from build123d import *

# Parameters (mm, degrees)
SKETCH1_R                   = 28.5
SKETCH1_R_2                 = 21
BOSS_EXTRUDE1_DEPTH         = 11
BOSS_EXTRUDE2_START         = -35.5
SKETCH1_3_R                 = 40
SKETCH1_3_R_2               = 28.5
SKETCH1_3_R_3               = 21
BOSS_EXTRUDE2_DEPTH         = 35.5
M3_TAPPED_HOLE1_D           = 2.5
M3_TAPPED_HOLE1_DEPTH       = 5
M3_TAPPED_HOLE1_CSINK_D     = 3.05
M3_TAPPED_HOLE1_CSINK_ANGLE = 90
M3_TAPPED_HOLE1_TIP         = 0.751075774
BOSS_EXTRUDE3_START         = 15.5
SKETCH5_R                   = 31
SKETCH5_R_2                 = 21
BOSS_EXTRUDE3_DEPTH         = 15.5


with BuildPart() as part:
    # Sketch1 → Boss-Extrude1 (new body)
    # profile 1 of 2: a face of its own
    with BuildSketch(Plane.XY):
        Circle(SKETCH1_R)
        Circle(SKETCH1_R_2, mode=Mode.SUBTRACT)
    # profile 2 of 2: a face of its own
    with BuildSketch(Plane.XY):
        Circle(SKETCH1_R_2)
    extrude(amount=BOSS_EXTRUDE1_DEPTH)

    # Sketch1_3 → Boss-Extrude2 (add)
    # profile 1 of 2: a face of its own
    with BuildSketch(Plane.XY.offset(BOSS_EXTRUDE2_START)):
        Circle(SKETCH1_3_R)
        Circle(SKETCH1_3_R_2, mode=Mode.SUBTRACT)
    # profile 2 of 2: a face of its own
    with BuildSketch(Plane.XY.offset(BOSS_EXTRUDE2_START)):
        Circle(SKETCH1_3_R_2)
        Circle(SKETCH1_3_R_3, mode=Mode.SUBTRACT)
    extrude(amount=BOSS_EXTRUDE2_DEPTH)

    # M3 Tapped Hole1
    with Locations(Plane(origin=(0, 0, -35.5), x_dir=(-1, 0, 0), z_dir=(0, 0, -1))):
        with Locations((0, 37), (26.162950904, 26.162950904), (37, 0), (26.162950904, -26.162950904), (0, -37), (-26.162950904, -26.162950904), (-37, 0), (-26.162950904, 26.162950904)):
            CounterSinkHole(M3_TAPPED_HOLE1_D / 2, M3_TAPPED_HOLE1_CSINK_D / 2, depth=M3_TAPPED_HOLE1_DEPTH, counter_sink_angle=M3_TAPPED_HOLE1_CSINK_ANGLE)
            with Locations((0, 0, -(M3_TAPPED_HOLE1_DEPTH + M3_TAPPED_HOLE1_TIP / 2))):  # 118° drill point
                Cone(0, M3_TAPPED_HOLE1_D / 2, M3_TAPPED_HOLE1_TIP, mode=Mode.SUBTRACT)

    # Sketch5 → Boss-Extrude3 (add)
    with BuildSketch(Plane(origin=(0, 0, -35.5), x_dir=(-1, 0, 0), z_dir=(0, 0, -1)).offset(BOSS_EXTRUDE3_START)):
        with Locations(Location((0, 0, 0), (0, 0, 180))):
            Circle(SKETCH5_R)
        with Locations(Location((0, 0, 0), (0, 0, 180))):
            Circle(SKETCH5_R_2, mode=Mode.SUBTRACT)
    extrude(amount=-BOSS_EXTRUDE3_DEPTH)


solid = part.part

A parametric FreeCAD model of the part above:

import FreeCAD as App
import Part
import Sketcher

V = App.Vector
Q = App.Units.Quantity

doc = App.newDocument("Part")
params = doc.addObject("Spreadsheet::Sheet", "Params")
for row, (alias, value) in enumerate([
    ("sketch1_diameter", "57 mm"),
    ("pad1_length", "11 mm"),
    ("sketch2_diameter", "80 mm"),
    ("sketch2_diameter2", "42 mm"),
    ("pad2_length", "35.5 mm"),
    ("sketch3_diameter", "2.5 mm"),
    ("hole_diameter", "2.5 mm"),
    ("hole_depth", "5 mm"),
    ("hole_csink_diameter", "3.05 mm"),
    ("sketch4_diameter", "62 mm"),
    ("sketch4_diameter2", "42 mm"),
    ("pad3_length", "15.5 mm"),
], start=1):
    params.set(f"A{row}", alias)
    params.set(f"B{row}", "=" + value)
    params.setAlias(f"B{row}", alias)

body = doc.addObject("PartDesign::Body", "Body")

# Sketch on XY plane
sketch1 = body.newObject("Sketcher::SketchObject", "Sketch")
sketch1.AttachmentSupport = (doc.getObject("XY_Plane"), [""])
sketch1.MapMode = "FlatFace"
sketch1.addGeometry(Part.Circle(V(0, 0, 0), V(0, 0, 1), 28), False)
sketch1.addConstraint([
    Sketcher.Constraint("Coincident", 0, 3, -1, 1),
    Sketcher.Constraint("Diameter", 0, Q("57 mm")),
])
sketch1.setExpression("Constraints[1]", "Params.sketch1_diameter")
pad1 = body.newObject("PartDesign::Pad", "Pad")
pad1.Profile = sketch1
pad1.setExpression("Length", "Params.pad1_length")

# Sketch on XY plane
sketch2 = body.newObject("Sketcher::SketchObject", "Sketch001")
sketch2.AttachmentSupport = (doc.getObject("XY_Plane"), [""])
sketch2.MapMode = "FlatFace"
sketch2.AttachmentOffset = App.Placement(V(0, 0, -35.5), App.Rotation())
sketch2.addGeometry([
    Part.Circle(V(0, 0, 0), V(0, 0, 1), 40),
    Part.Circle(V(0, 0, 0), V(0, 0, 1), 21),
], False)
sketch2.addConstraint([
    Sketcher.Constraint("Coincident", 0, 3, -1, 1),
    Sketcher.Constraint("Coincident", 1, 3, -1, 1),
    Sketcher.Constraint("Diameter", 0, Q("80 mm")),
    Sketcher.Constraint("Diameter", 1, Q("42 mm")),
])
sketch2.setExpression("Constraints[2]", "Params.sketch2_diameter")
sketch2.setExpression("Constraints[3]", "Params.sketch2_diameter2")
pad2 = body.newObject("PartDesign::Pad", "Pad001")
pad2.Profile = sketch2
pad2.setExpression("Length", "Params.pad2_length")

# Sketch on XY plane
sketch3 = body.newObject("Sketcher::SketchObject", "Sketch002")
sketch3.AttachmentSupport = (doc.getObject("XY_Plane"), [""])
sketch3.MapMode = "FlatFace"
sketch3.AttachmentOffset = App.Placement(V(0, 0, -35.5), App.Rotation())
sketch3.addGeometry([
    Part.Circle(V(0, 37, 0), V(0, 0, 1), 1.2),  # 0
    Part.Circle(V(-26.2, 26.2, 0), V(0, 0, 1), 1.2),  # 1
    Part.Circle(V(-37, 0, 0), V(0, 0, 1), 1.2),  # 2
    Part.Circle(V(-26.2, -26.2, 0), V(0, 0, 1), 1.2),  # 3
    Part.Circle(V(0, -37, 0), V(0, 0, 1), 1.2),  # 4
    Part.Circle(V(26.2, -26.2, 0), V(0, 0, 1), 1.2),  # 5
    Part.Circle(V(37, 0, 0), V(0, 0, 1), 1.2),  # 6
    Part.Circle(V(26.2, 26.2, 0), V(0, 0, 1), 1.2),  # 7
], False)
sketch3.addConstraint([
    Sketcher.Constraint("Equal", 0, 1),
    Sketcher.Constraint("Equal", 1, 2),
    Sketcher.Constraint("Equal", 2, 3),
    Sketcher.Constraint("Equal", 3, 4),
    Sketcher.Constraint("Equal", 4, 5),
    Sketcher.Constraint("Equal", 5, 6),
    Sketcher.Constraint("Equal", 6, 7),
    Sketcher.Constraint("Symmetric", 0, 3, 4, 3, -1, 1),
    Sketcher.Constraint("Symmetric", 1, 3, 5, 3, -1, 1),
    Sketcher.Constraint("Symmetric", 2, 3, 6, 3, -1, 1),
    Sketcher.Constraint("Symmetric", 3, 3, 7, 3, -1, 1),
    Sketcher.Constraint("Symmetric", 3, 3, 5, 3, -2),
    Sketcher.Constraint("PointOnObject", 0, 3, -2),
    Sketcher.Constraint("PointOnObject", 2, 3, -1),
    Sketcher.Constraint("Diameter", 0, Q("2.5 mm")),
    Sketcher.Constraint("DistanceY", -1, 1, 0, 3, Q("37 mm")),
    Sketcher.Constraint("DistanceX", 2, 3, -1, 1, Q("37 mm")),
    Sketcher.Constraint("DistanceY", 3, 3, 1, 3, Q("52.325902 mm")),
    Sketcher.Constraint("DistanceX", 3, 3, 5, 3, Q("52.325902 mm")),
])
sketch3.setExpression("Constraints[14]", "Params.sketch3_diameter")
doc.recompute()
hole = body.newObject("PartDesign::Hole", "Hole")
hole.Profile = sketch3
hole.ThreadType = "None"
hole.setExpression("Diameter", "Params.hole_diameter")
hole.DepthType = "Dimension"
hole.setExpression("Depth", "Params.hole_depth")
hole.DrillPoint = "Angled"
hole.DrillPointAngle = 118
hole.HoleCutType = "Countersink"
hole.setExpression("HoleCutDiameter", "Params.hole_csink_diameter")
hole.HoleCutCountersinkAngle = 90
hole.Reversed = True

# Sketch on XY plane
sketch4 = body.newObject("Sketcher::SketchObject", "Sketch003")
sketch4.AttachmentSupport = (doc.getObject("XY_Plane"), [""])
sketch4.MapMode = "FlatFace"
sketch4.AttachmentOffset = App.Placement(V(0, 0, -51), App.Rotation())
sketch4.addGeometry([
    Part.Circle(V(0, 0, 0), V(0, 0, 1), 31),
    Part.Circle(V(0, 0, 0), V(0, 0, 1), 21),
], False)
sketch4.addConstraint([
    Sketcher.Constraint("Coincident", 0, 3, -1, 1),
    Sketcher.Constraint("Coincident", 1, 3, -1, 1),
    Sketcher.Constraint("Diameter", 0, Q("62 mm")),
    Sketcher.Constraint("Diameter", 1, Q("42 mm")),
])
sketch4.setExpression("Constraints[2]", "Params.sketch4_diameter")
sketch4.setExpression("Constraints[3]", "Params.sketch4_diameter2")
pad3 = body.newObject("PartDesign::Pad", "Pad002")
pad3.Profile = sketch4
pad3.setExpression("Length", "Params.pad3_length")

doc.recompute()
